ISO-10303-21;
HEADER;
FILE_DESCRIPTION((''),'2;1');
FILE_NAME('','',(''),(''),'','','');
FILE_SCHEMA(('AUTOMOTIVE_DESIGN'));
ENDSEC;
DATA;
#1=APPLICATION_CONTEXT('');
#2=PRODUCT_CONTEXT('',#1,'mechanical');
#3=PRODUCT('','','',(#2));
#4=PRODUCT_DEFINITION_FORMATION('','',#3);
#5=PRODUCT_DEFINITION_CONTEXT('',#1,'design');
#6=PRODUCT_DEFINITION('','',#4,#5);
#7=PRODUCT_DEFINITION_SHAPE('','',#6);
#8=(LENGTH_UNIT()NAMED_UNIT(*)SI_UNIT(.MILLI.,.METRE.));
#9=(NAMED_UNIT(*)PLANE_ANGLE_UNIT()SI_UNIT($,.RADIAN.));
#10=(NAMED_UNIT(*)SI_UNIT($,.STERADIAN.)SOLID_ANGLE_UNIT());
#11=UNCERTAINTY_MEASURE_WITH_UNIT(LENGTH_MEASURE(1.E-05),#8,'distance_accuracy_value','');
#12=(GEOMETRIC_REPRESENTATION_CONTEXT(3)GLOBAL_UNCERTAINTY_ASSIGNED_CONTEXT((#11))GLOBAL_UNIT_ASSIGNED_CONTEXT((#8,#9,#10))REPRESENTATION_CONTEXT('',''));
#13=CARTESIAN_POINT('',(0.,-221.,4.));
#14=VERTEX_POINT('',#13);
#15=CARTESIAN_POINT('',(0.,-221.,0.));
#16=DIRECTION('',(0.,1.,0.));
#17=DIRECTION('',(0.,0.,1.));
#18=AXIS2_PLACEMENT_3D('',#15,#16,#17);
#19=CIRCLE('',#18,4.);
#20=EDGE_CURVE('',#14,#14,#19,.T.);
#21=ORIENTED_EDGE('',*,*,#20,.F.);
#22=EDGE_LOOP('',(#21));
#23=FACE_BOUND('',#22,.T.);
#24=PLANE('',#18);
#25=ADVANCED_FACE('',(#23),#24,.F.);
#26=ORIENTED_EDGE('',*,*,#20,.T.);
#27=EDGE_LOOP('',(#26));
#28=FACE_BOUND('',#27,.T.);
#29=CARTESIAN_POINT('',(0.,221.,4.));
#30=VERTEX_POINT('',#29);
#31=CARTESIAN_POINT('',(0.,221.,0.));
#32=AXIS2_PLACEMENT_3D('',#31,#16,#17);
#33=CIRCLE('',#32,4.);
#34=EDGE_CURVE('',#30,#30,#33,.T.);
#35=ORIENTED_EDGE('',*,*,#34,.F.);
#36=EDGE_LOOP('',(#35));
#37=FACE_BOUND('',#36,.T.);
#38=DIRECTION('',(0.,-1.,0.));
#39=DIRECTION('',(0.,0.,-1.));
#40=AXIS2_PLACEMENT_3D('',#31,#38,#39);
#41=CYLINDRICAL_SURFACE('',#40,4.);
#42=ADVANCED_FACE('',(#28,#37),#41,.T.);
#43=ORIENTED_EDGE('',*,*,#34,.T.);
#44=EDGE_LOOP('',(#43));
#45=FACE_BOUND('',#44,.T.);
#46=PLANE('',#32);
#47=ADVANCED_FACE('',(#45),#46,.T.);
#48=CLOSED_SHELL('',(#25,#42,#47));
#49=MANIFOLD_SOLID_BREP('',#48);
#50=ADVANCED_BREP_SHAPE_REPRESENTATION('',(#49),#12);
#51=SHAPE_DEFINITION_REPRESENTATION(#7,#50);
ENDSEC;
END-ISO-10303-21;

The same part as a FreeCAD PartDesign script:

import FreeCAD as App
import Part
import Sketcher

doc = App.newDocument("Part")
body = doc.addObject("PartDesign::Body", "Body")

sketch1 = doc.addObject("Sketcher::SketchObject", "Sketch")
body.addObject(sketch1)
sketch1.AttachmentSupport = (doc.XZ_Plane, [""])
sketch1.MapMode = "FlatFace"
sketch1.addGeometry(Part.Circle(App.Vector(0, 0, 0), App.Vector(0, 0, 1), 4), False)
sketch1.addConstraint([
    Sketcher.Constraint("Coincident", 0, 3, -1, 1),
    Sketcher.Constraint("Diameter", 0, 8.0),
])
pad1 = doc.addObject("PartDesign::Pad", "Pad")
body.addObject(pad1)
pad1.Profile = sketch1
pad1.Length = 442
pad1.Midplane = True

doc.recompute()
